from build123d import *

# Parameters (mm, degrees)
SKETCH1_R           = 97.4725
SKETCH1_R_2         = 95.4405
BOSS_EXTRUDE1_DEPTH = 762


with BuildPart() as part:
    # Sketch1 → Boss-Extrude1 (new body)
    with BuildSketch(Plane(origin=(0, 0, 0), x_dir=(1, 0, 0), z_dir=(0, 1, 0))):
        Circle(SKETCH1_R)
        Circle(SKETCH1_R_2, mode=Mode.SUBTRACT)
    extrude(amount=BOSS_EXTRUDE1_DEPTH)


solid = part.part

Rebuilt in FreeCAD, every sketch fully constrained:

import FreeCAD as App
import Part
import Sketcher
Q = App.Units.Quantity

doc = App.newDocument("Part")
params = doc.addObject("Spreadsheet::Sheet", "Params")
for row, (alias, value) in enumerate([
    ("sketch1_diameter", "7.675 in"),
    ("sketch1_diameter2", "7.515 in"),
    ("pad1_length", "30 in"),
], start=1):
    params.set(f"A{row}", alias)
    params.set(f"B{row}", "=" + value)
    params.setAlias(f"B{row}", alias)

body = doc.addObject("PartDesign::Body", "Body")

# Sketch on XZ plane
sketch1 = doc.addObject("Sketcher::SketchObject", "Sketch")
body.addObject(sketch1)
sketch1.AttachmentSupport = (doc.XZ_Plane, [""])
sketch1.MapMode = "FlatFace"
sketch1.addGeometry([
    Part.Circle(App.Vector(0, 0, 0), App.Vector(0, 0, 1), 97),
    Part.Circle(App.Vector(0, 0, 0), App.Vector(0, 0, 1), 95),
], False)
sketch1.addConstraint([
    Sketcher.Constraint("Coincident", 0, 3, -1, 1),
    Sketcher.Constraint("Coincident", 1, 3, -1, 1),
    Sketcher.Constraint("Diameter", 0, Q("7.675 in")),
    Sketcher.Constraint("Diameter", 1, Q("7.515 in")),
])
sketch1.setExpression("Constraints[2]", "Params.sketch1_diameter")
sketch1.setExpression("Constraints[3]", "Params.sketch1_diameter2")
pad1 = doc.addObject("PartDesign::Pad", "Pad")
body.addObject(pad1)
pad1.Profile = sketch1
pad1.setExpression("Length", "Params.pad1_length")
pad1.Reversed = True

doc.recompute()
